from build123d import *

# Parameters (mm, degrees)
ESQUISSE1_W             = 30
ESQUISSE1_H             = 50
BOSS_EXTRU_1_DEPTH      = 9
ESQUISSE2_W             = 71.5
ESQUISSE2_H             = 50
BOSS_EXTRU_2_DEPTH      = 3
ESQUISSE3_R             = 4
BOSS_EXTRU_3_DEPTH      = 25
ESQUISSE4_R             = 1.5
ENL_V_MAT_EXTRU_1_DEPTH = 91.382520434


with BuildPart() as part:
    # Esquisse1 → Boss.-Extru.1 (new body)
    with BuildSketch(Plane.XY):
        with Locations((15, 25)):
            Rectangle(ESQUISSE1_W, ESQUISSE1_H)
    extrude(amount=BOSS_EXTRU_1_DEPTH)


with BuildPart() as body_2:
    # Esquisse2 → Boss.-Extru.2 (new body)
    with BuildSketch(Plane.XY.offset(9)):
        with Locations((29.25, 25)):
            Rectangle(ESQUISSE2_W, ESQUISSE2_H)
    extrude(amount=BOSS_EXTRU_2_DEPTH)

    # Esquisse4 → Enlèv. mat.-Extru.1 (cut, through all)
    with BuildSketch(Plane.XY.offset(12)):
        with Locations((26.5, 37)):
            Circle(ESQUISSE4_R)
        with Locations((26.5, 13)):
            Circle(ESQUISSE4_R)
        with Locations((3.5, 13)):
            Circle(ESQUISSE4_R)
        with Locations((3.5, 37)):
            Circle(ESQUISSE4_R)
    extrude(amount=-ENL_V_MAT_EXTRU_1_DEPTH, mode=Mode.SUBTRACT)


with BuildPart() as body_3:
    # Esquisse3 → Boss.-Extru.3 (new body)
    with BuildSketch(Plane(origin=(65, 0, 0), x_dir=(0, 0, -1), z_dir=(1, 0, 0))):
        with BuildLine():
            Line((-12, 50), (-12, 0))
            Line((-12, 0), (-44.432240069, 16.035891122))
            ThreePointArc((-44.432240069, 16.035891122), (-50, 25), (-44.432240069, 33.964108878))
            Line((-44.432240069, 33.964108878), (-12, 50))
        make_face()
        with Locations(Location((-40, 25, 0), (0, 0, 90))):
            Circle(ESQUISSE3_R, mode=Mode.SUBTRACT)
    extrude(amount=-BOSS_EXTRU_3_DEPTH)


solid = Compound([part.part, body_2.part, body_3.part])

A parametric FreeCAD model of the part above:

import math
import FreeCAD as App
import Part
import Sketcher

V = App.Vector

doc = App.newDocument("Part")
body = doc.addObject("PartDesign::Body", "Body")

# Sketch on XY plane
sketch1 = doc.addObject("Sketcher::SketchObject", "Sketch")
body.addObject(sketch1)
sketch1.AttachmentSupport = (doc.XY_Plane, [""])
sketch1.MapMode = "FlatFace"
sketch1.addGeometry(Part.LineSegment(V(0, 50, 0), V(0, 0, 0)), False)
sketch1.addGeometry(Part.LineSegment(V(0, 0, 0), V(30, 0, 0)), False)
sketch1.addGeometry(Part.LineSegment(V(30, 0, 0), V(30, 50, 0)), False)
sketch1.addGeometry(Part.LineSegment(V(30, 50, 0), V(0, 50, 0)), False)
sketch1.addConstraint(Sketcher.Constraint("Coincident", 0, 2, 1, 1))
sketch1.addConstraint(Sketcher.Constraint("Coincident", 1, 2, 2, 1))
sketch1.addConstraint(Sketcher.Constraint("Coincident", 2, 2, 3, 1))
sketch1.addConstraint(Sketcher.Constraint("Coincident", 3, 2, 0, 1))
sketch1.addConstraint(Sketcher.Constraint("Vertical", 0))
sketch1.addConstraint(Sketcher.Constraint("Horizontal", 1))
sketch1.addConstraint(Sketcher.Constraint("Vertical", 2))
sketch1.addConstraint(Sketcher.Constraint("Horizontal", 3))
sketch1.addConstraint(Sketcher.Constraint("Coincident", 0, 2, -1, 1))
sketch1.addConstraint(Sketcher.Constraint("DistanceX", 1, 1, 1, 2, 30.0))
sketch1.addConstraint(Sketcher.Constraint("DistanceY", 0, 2, 0, 1, 50.0))
pad1 = doc.addObject("PartDesign::Pad", "Pad")
body.addObject(pad1)
pad1.Profile = sketch1
pad1.Length = 9
body2 = doc.addObject("PartDesign::Body", "Body001")

# Sketch on XY plane
sketch2 = doc.addObject("Sketcher::SketchObject", "Sketch001")
body2.addObject(sketch2)
sketch2.AttachmentSupport = (doc.getObject("XY_Plane001"), [""])
sketch2.MapMode = "FlatFace"
sketch2.AttachmentOffset = App.Placement(V(0, 0, 9), App.Rotation())
sketch2.addGeometry(Part.LineSegment(V(-6, 50, 0), V(-6, 0, 0)), False)
sketch2.addGeometry(Part.LineSegment(V(-6, 0, 0), V(65, 0, 0)), False)
sketch2.addGeometry(Part.LineSegment(V(65, 0, 0), V(65, 50, 0)), False)
sketch2.addGeometry(Part.LineSegment(V(65, 50, 0), V(-6, 50, 0)), False)
sketch2.addConstraint(Sketcher.Constraint("Coincident", 0, 2, 1, 1))
sketch2.addConstraint(Sketcher.Constraint("Coincident", 1, 2, 2, 1))
sketch2.addConstraint(Sketcher.Constraint("Coincident", 2, 2, 3, 1))
sketch2.addConstraint(Sketcher.Constraint("Coincident", 3, 2, 0, 1))
sketch2.addConstraint(Sketcher.Constraint("Vertical", 0))
sketch2.addConstraint(Sketcher.Constraint("Horizontal", 1))
sketch2.addConstraint(Sketcher.Constraint("Vertical", 2))
sketch2.addConstraint(Sketcher.Constraint("Horizontal", 3))
sketch2.addConstraint(Sketcher.Constraint("PointOnObject", 0, 2, -1))
sketch2.addConstraint(Sketcher.Constraint("DistanceY", 0, 2, 0, 1, 50.0))
sketch2.addConstraint(Sketcher.Constraint("DistanceX", 1, 1, 1, 2, 71.5))
sketch2.addConstraint(Sketcher.Constraint("DistanceX", -1, 1, 1, 2, 65.0))
pad2 = doc.addObject("PartDesign::Pad", "Pad001")
body2.addObject(pad2)
pad2.Profile = sketch2
pad2.Length = 3

# Sketch on XY plane
sketch3 = doc.addObject("Sketcher::SketchObject", "Sketch002")
body2.addObject(sketch3)
sketch3.AttachmentSupport = (doc.getObject("XY_Plane001"), [""])
sketch3.MapMode = "FlatFace"
sketch3.AttachmentOffset = App.Placement(V(0, 0, 12), App.Rotation())
sketch3.addGeometry(Part.Circle(V(26.5, 37, 0), V(0, 0, 1), 1.5), False)
sketch3.addGeometry(Part.Circle(V(26.5, 13, 0), V(0, 0, 1), 1.5), False)
sketch3.addGeometry(Part.Circle(V(3.5, 13, 0), V(0, 0, 1), 1.5), False)
sketch3.addGeometry(Part.Circle(V(3.5, 37, 0), V(0, 0, 1), 1.5), False)
sketch3.addConstraint(Sketcher.Constraint("Equal", 0, 1))
sketch3.addConstraint(Sketcher.Constraint("Equal", 1, 2))
sketch3.addConstraint(Sketcher.Constraint("Equal", 2, 3))
sketch3.addConstraint(Sketcher.Constraint("Horizontal", 1, 3, 2, 3))
sketch3.addConstraint(Sketcher.Constraint("Horizontal", 0, 3, 3, 3))
sketch3.addConstraint(Sketcher.Constraint("Vertical", 0, 3, 1, 3))
sketch3.addConstraint(Sketcher.Constraint("Vertical", 2, 3, 3, 3))
sketch3.addConstraint(Sketcher.Constraint("Diameter", 0, 3.0))
sketch3.addConstraint(Sketcher.Constraint("DistanceY", -1, 1, 0, 3, 37.0))
sketch3.addConstraint(Sketcher.Constraint("DistanceY", -1, 1, 1, 3, 13.0))
sketch3.addConstraint(Sketcher.Constraint("DistanceX", 2, 3, 1, 3, 23.0))
sketch3.addConstraint(Sketcher.Constraint("DistanceX", -1, 1, 0, 3, 26.5))
pocket1 = doc.addObject("PartDesign::Pocket", "Pocket")
body2.addObject(pocket1)
pocket1.Profile = sketch3
pocket1.Type = "ThroughAll"
body3 = doc.addObject("PartDesign::Body", "Body002")

# Sketch on YZ plane
sketch4 = doc.addObject("Sketcher::SketchObject", "Sketch003")
body3.addObject(sketch4)
sketch4.AttachmentSupport = (doc.getObject("YZ_Plane002"), [""])
sketch4.MapMode = "FlatFace"
sketch4.AttachmentOffset = App.Placement(V(0, 0, 65), App.Rotation())
sketch4.addGeometry(Part.LineSegment(V(0, 12, 0), V(50, 12, 0)), False)
sketch4.addGeometry(Part.LineSegment(V(50, 12, 0), V(34, 44.4, 0)), False)
sketch4.addGeometry(Part.ArcOfCircle(Part.Circle(V(25, 40, 0), V(0, 0, 1), 10), math.radians(26), math.radians(154)), False)
sketch4.addGeometry(Part.LineSegment(V(16, 44.4, 0), V(0, 12, 0)), False)
sketch4.addGeometry(Part.Circle(V(25, 40, 0), V(0, 0, 1), 4), False)
sketch4.addConstraint(Sketcher.Constraint("Coincident", 0, 2, 1, 1))
sketch4.addConstraint(Sketcher.Constraint("Tangent", 1, 2, 2, 1))
sketch4.addConstraint(Sketcher.Constraint("Tangent", 2, 2, 3, 1))
sketch4.addConstraint(Sketcher.Constraint("Coincident", 3, 2, 0, 1))
sketch4.addConstraint(Sketcher.Constraint("Horizontal", 0))
sketch4.addConstraint(Sketcher.Constraint("Coincident", 4, 3, 2, 3))
sketch4.addConstraint(Sketcher.Constraint("PointOnObject", 3, 2, -2))
sketch4.addConstraint(Sketcher.Constraint("Horizontal", 1, 2, 2, 2))
sketch4.addConstraint(Sketcher.Constraint("Diameter", 4, 8.0))
sketch4.addConstraint(Sketcher.Constraint("Radius", 2, 10.0))
sketch4.addConstraint(Sketcher.Constraint("DistanceX", 0, 1, 0, 2, 50.0))
sketch4.addConstraint(Sketcher.Constraint("DistanceY", -1, 1, 2, 3, 40.0))
sketch4.addConstraint(Sketcher.Constraint("DistanceY", -1, 1, 0, 2, 12.0))
pad3 = doc.addObject("PartDesign::Pad", "Pad002")
body3.addObject(pad3)
pad3.Profile = sketch4
pad3.Length = 25
pad3.Reversed = True

doc.recompute()
